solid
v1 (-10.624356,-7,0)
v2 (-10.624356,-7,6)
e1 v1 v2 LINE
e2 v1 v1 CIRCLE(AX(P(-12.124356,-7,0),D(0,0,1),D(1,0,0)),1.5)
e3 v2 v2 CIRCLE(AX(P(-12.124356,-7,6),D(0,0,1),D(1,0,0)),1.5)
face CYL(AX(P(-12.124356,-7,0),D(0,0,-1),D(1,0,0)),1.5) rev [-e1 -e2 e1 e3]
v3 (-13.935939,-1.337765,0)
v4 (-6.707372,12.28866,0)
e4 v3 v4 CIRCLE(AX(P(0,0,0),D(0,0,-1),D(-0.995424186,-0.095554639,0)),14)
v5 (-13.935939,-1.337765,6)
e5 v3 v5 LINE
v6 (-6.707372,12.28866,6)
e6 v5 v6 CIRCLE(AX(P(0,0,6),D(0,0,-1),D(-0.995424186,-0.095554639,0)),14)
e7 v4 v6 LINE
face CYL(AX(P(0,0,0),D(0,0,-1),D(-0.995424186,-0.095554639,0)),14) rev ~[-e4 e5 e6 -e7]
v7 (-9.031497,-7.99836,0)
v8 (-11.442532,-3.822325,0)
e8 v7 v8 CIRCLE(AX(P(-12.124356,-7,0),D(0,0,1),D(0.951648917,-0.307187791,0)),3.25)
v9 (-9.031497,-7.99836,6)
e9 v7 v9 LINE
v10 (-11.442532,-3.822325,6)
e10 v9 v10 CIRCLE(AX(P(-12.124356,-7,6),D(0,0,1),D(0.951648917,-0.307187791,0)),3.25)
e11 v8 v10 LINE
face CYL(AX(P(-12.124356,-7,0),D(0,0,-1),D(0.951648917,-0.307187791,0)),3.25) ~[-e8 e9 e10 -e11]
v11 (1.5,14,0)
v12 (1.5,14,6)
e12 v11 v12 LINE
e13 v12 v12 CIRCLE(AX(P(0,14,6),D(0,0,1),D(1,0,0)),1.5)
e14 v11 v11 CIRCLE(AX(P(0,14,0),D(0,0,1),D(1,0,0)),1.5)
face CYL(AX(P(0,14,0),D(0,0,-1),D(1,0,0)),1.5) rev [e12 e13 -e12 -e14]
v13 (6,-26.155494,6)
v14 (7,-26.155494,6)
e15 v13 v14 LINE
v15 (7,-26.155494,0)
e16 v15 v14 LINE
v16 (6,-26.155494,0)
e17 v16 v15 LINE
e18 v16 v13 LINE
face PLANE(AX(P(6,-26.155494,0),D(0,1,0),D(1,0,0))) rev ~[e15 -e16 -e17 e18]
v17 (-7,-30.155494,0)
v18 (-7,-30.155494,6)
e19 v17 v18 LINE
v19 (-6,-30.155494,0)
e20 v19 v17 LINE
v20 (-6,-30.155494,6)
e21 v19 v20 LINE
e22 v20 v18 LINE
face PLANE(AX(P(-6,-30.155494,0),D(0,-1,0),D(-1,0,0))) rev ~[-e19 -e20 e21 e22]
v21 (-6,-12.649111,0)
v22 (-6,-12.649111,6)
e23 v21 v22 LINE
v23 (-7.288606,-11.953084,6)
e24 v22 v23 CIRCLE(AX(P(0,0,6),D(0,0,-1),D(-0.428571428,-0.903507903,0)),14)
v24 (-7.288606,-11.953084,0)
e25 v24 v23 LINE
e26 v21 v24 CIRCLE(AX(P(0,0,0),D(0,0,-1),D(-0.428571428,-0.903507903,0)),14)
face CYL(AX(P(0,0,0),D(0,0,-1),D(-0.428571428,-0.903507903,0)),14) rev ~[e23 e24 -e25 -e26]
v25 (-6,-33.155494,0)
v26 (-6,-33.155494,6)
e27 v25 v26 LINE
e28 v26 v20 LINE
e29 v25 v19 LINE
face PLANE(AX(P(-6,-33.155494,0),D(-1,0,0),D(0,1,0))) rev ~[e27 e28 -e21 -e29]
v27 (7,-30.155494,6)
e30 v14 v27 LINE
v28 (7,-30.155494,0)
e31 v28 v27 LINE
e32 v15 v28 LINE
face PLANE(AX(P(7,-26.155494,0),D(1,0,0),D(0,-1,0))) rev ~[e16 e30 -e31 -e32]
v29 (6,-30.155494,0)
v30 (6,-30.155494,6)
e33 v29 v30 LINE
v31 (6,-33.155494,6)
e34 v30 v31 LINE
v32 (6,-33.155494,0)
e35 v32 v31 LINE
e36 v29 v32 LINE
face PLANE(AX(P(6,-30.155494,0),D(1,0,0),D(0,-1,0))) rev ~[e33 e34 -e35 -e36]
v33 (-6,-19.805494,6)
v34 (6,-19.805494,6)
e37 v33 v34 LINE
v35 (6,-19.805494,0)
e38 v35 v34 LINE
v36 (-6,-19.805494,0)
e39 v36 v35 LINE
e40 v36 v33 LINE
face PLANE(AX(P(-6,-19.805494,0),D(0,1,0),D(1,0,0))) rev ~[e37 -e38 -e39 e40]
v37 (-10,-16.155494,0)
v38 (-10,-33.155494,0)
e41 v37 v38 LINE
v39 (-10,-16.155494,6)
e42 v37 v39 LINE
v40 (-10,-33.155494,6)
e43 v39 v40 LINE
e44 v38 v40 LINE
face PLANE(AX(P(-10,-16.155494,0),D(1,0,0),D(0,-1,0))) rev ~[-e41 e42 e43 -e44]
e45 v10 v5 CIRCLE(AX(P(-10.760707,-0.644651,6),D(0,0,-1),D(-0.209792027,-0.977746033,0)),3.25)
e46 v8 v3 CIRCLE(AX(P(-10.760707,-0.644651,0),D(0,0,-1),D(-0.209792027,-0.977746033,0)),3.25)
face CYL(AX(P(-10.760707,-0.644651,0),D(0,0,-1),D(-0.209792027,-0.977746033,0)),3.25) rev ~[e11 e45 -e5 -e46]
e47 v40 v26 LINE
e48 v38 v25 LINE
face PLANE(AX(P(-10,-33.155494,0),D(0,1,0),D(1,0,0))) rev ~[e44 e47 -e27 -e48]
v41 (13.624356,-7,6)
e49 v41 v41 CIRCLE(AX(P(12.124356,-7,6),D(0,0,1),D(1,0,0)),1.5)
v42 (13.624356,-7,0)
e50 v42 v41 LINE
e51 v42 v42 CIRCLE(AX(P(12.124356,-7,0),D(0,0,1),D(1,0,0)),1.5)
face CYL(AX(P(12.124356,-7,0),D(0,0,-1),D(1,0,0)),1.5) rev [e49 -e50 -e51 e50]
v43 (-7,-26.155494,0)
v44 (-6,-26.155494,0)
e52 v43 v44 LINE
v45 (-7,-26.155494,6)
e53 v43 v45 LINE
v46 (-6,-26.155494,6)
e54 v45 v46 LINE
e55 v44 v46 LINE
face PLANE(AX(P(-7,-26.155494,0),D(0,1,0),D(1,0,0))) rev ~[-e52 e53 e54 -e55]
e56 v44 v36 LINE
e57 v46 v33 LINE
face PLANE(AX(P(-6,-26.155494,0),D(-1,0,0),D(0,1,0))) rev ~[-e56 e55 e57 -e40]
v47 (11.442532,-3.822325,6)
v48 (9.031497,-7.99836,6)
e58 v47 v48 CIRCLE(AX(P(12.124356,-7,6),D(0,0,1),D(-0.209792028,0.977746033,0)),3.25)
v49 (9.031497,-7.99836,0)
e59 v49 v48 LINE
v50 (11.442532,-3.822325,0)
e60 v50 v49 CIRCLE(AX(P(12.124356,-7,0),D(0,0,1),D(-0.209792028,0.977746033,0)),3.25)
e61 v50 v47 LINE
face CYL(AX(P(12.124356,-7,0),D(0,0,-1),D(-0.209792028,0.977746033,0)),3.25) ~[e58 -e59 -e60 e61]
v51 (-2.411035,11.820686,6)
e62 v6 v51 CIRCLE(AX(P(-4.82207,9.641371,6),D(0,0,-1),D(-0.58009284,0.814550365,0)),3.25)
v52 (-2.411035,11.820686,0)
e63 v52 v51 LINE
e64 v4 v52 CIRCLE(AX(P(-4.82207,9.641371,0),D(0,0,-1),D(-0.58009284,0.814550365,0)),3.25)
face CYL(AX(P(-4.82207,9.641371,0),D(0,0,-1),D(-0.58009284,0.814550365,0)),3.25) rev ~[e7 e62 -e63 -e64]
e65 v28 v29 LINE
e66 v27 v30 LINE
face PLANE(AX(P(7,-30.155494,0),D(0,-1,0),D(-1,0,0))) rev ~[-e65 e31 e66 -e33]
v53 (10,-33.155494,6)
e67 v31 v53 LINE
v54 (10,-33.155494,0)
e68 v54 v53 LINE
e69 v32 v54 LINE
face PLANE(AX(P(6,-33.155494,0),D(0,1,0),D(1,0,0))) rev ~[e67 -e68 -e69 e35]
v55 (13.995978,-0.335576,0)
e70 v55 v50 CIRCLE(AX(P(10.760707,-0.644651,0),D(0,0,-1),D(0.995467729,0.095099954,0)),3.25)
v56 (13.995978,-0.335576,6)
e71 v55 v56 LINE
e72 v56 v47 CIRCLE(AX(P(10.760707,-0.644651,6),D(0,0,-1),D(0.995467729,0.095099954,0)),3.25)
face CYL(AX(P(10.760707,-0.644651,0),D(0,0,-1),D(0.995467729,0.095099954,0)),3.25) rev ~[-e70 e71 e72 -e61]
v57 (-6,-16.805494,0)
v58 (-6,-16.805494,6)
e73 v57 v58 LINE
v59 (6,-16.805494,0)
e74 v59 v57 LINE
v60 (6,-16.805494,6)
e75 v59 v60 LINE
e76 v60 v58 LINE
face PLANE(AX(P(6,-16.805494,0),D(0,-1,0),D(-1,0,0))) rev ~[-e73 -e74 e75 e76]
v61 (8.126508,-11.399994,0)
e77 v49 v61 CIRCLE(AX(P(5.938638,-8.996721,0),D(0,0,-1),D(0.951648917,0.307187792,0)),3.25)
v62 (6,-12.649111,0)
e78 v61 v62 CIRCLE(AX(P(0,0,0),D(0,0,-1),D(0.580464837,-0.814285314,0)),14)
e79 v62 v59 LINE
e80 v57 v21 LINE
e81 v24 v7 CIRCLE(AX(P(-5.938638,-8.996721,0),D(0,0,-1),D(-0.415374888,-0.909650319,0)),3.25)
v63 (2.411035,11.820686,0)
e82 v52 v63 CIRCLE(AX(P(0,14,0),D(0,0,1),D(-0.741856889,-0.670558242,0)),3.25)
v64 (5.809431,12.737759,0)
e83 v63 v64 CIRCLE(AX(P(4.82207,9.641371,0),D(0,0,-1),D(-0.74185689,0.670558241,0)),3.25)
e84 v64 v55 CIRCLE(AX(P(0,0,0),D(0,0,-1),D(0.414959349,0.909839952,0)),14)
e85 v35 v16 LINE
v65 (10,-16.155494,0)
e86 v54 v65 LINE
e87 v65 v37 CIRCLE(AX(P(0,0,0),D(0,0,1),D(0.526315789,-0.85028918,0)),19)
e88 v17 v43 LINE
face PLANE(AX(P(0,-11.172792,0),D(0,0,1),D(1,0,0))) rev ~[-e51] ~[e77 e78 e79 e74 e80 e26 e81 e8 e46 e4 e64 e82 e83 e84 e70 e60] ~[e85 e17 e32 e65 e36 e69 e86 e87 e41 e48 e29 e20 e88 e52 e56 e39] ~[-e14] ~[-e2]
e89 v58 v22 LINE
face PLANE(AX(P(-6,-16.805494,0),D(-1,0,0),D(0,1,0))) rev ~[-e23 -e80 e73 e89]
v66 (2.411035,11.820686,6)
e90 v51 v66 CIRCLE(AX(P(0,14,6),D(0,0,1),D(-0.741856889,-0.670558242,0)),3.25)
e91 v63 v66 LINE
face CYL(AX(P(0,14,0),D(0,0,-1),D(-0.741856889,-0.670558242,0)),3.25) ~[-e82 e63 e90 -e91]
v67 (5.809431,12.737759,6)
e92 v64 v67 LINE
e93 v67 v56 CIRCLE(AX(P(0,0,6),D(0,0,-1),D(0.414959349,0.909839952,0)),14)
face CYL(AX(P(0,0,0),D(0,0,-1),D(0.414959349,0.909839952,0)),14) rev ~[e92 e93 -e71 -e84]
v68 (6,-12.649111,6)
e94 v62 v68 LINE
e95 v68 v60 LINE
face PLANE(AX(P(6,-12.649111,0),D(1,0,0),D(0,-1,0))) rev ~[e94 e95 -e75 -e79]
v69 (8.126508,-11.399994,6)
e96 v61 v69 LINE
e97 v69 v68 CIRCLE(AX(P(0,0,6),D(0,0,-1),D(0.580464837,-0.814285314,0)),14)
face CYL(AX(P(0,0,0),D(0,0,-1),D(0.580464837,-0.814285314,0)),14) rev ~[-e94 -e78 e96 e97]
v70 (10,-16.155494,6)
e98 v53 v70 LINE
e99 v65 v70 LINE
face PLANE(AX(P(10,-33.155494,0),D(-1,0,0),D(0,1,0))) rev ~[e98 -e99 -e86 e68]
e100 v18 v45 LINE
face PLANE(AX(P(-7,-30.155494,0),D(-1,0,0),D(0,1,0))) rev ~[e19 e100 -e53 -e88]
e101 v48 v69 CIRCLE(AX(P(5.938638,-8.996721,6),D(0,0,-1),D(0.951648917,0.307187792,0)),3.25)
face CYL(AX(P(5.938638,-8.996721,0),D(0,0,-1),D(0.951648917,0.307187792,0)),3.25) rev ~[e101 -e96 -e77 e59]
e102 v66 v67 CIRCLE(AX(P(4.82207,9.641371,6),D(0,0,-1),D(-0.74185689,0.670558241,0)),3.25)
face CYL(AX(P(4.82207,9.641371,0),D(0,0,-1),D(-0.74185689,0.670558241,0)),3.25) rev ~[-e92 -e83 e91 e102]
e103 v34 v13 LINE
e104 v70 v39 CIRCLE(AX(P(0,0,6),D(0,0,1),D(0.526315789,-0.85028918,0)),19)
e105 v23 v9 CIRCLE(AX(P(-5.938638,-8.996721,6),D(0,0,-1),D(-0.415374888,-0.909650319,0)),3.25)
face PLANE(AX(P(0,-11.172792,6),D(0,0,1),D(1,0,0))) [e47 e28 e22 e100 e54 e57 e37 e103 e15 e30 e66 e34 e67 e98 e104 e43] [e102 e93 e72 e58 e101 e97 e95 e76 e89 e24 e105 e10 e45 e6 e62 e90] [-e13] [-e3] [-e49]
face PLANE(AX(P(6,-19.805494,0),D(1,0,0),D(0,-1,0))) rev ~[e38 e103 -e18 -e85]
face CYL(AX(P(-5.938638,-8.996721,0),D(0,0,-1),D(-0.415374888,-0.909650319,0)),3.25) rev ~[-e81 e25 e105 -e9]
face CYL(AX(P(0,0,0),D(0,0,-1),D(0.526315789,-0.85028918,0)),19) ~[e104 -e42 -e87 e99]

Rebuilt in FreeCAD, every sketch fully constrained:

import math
import FreeCAD as App
import Part
import Sketcher

V = App.Vector

doc = App.newDocument("Part")
body = doc.addObject("PartDesign::Body", "Body")

sketch1 = doc.addObject("Sketcher::SketchObject", "Sketch")
body.addObject(sketch1)
sketch1.AttachmentSupport = (doc.XY_Plane, [""])
sketch1.MapMode = "FlatFace"
sketch1.addGeometry([
    Part.LineSegment(V(-6, -33.2, 0), V(-6, -30.2, 0)),
    Part.LineSegment(V(-6, -30.2, 0), V(-7, -30.2, 0)),
    Part.LineSegment(V(-7, -30.2, 0), V(-7, -26.2, 0)),
    Part.LineSegment(V(-7, -26.2, 0), V(-6, -26.2, 0)),
    Part.LineSegment(V(-6, -26.2, 0), V(-6, -19.8, 0)),
    Part.LineSegment(V(-6, -19.8, 0), V(6, -19.8, 0)),
    Part.LineSegment(V(6, -19.8, 0), V(6, -26.2, 0)),
    Part.LineSegment(V(6, -26.2, 0), V(7, -26.2, 0)),
    Part.LineSegment(V(7, -26.2, 0), V(7, -30.2, 0)),
    Part.LineSegment(V(7, -30.2, 0), V(6, -30.2, 0)),
    Part.LineSegment(V(6, -30.2, 0), V(6, -33.2, 0)),
    Part.LineSegment(V(6, -33.2, 0), V(10, -33.2, 0)),
    Part.LineSegment(V(10, -33.2, 0), V(10, -16.2, 0)),
    Part.ArcOfCircle(Part.Circle(V(0, 0, 0), V(0, 0, 1), 19), math.radians(-58), math.radians(238)),
    Part.LineSegment(V(-10, -16.2, 0), V(-10, -33.2, 0)),
    Part.LineSegment(V(-10, -33.2, 0), V(-6, -33.2, 0)),
    Part.Circle(V(-12.1, -7, 0), V(0, 0, 1), 1.5),
    Part.LineSegment(V(6, -12.6, 0), V(6, -16.8, 0)),
    Part.LineSegment(V(6, -16.8, 0), V(-6, -16.8, 0)),
    Part.LineSegment(V(-6, -16.8, 0), V(-6, -12.6, 0)),
    Part.ArcOfCircle(Part.Circle(V(0, 0, 0), V(0, 0, 1), 14), math.radians(-121.37), math.radians(-115.38)),
    Part.ArcOfCircle(Part.Circle(V(-5.9, -9, 0), V(0, 0, 1), 3.2), math.radians(162), math.radians(245)),
    Part.ArcOfCircle(Part.Circle(V(-12.1, -7, 0), V(0, 0, 1), 3.3), math.radians(-18), math.radians(78)),
    Part.ArcOfCircle(Part.Circle(V(-10.8, -0.6, 0), V(0, 0, 1), 3.2), math.radians(-168), math.radians(-102)),
    Part.ArcOfCircle(Part.Circle(V(0, 0, 0), V(0, 0, 1), 14), math.radians(119), math.radians(185)),
    Part.ArcOfCircle(Part.Circle(V(-4.8, 9.6, 0), V(0, 0, 1), 3.2), math.radians(42), math.radians(125)),
    Part.ArcOfCircle(Part.Circle(V(0, 14, 0), V(0, 0, 1), 3.3), math.radians(-138), math.radians(-42)),
    Part.ArcOfCircle(Part.Circle(V(4.8, 9.6, 0), V(0, 0, 1), 3.2), math.radians(72), math.radians(138)),
    Part.ArcOfCircle(Part.Circle(V(0, 0, 0), V(0, 0, 1), 14), math.radians(-1), math.radians(65)),
    Part.ArcOfCircle(Part.Circle(V(10.8, -0.6, 0), V(0, 0, 1), 3.2), math.radians(-78), math.radians(5)),
    Part.ArcOfCircle(Part.Circle(V(12.1, -7, 0), V(0, 0, 1), 3.3), math.radians(102), math.radians(198)),
    Part.ArcOfCircle(Part.Circle(V(5.9, -9, 0), V(0, 0, 1), 3.2), math.radians(-48), math.radians(18)),
    Part.ArcOfCircle(Part.Circle(V(0, 0, 0), V(0, 0, 1), 14), math.radians(-64.62), math.radians(-54.52)),
    Part.Circle(V(12.1, -7, 0), V(0, 0, 1), 1.5),
    Part.Circle(V(0, 14, 0), V(0, 0, 1), 1.5),
], False)
sketch1.addConstraint([
    Sketcher.Constraint("Coincident", 0, 2, 1, 1),
    Sketcher.Constraint("Coincident", 1, 2, 2, 1),
    Sketcher.Constraint("Coincident", 2, 2, 3, 1),
    Sketcher.Constraint("Coincident", 3, 2, 4, 1),
    Sketcher.Constraint("Coincident", 4, 2, 5, 1),
    Sketcher.Constraint("Coincident", 5, 2, 6, 1),
    Sketcher.Constraint("Coincident", 6, 2, 7, 1),
    Sketcher.Constraint("Coincident", 7, 2, 8, 1),
    Sketcher.Constraint("Coincident", 8, 2, 9, 1),
    Sketcher.Constraint("Coincident", 9, 2, 10, 1),
    Sketcher.Constraint("Coincident", 10, 2, 11, 1),
    Sketcher.Constraint("Coincident", 11, 2, 12, 1),
    Sketcher.Constraint("Coincident", 12, 2, 13, 1),
    Sketcher.Constraint("Coincident", 13, 2, 14, 1),
    Sketcher.Constraint("Coincident", 14, 2, 15, 1),
    Sketcher.Constraint("Coincident", 15, 2, 0, 1),
    Sketcher.Constraint("Coincident", 17, 2, 18, 1),
    Sketcher.Constraint("Coincident", 18, 2, 19, 1),
    Sketcher.Constraint("Coincident", 19, 2, 20, 2),
    Sketcher.Constraint("Coincident", 20, 1, 21, 2),
    Sketcher.Constraint("Tangent", 21, 1, 22, 1),
    Sketcher.Constraint("Tangent", 22, 2, 23, 2),
    Sketcher.Constraint("Coincident", 23, 1, 24, 2),
    Sketcher.Constraint("Coincident", 24, 1, 25, 2),
    Sketcher.Constraint("Tangent", 25, 1, 26, 1),
    Sketcher.Constraint("Tangent", 26, 2, 27, 2),
    Sketcher.Constraint("Coincident", 27, 1, 28, 2),
    Sketcher.Constraint("Coincident", 28, 1, 29, 2),
    Sketcher.Constraint("Tangent", 29, 1, 30, 1),
    Sketcher.Constraint("Tangent", 30, 2, 31, 2),
    Sketcher.Constraint("Coincident", 31, 1, 32, 2),
    Sketcher.Constraint("Coincident", 32, 1, 17, 1),
    Sketcher.Constraint("Vertical", 0),
    Sketcher.Constraint("Horizontal", 1),
    Sketcher.Constraint("Vertical", 2),
    Sketcher.Constraint("Horizontal", 3),
    Sketcher.Constraint("Vertical", 4),
    Sketcher.Constraint("Horizontal", 5),
    Sketcher.Constraint("Vertical", 6),
    Sketcher.Constraint("Horizontal", 7),
    Sketcher.Constraint("Vertical", 8),
    Sketcher.Constraint("Horizontal", 9),
    Sketcher.Constraint("Vertical", 10),
    Sketcher.Constraint("Horizontal", 11),
    Sketcher.Constraint("Vertical", 12),
    Sketcher.Constraint("Vertical", 14),
    Sketcher.Constraint("Horizontal", 15),
    Sketcher.Constraint("Vertical", 17),
    Sketcher.Constraint("Horizontal", 18),
    Sketcher.Constraint("Vertical", 19),
    Sketcher.Constraint("Coincident", 13, 3, -1, 1),
    Sketcher.Constraint("Coincident", 20, 3, -1, 1),
    Sketcher.Constraint("Coincident", 24, 3, -1, 1),
    Sketcher.Constraint("Coincident", 28, 3, -1, 1),
    Sketcher.Constraint("Coincident", 32, 3, -1, 1),
    Sketcher.Constraint("Coincident", 22, 3, 16, 3),
    Sketcher.Constraint("Coincident", 33, 3, 30, 3),
    Sketcher.Constraint("Coincident", 34, 3, 26, 3),
    Sketcher.Constraint("Equal", 21, 22),
    Sketcher.Constraint("Equal", 22, 23),
    Sketcher.Constraint("Equal", 20, 24),
    Sketcher.Constraint("Equal", 23, 25),
    Sketcher.Constraint("Equal", 25, 26),
    Sketcher.Constraint("Equal", 26, 27),
    Sketcher.Constraint("Equal", 24, 28),
    Sketcher.Constraint("Equal", 27, 29),
    Sketcher.Constraint("Equal", 29, 30),
    Sketcher.Constraint("Equal", 30, 31),
    Sketcher.Constraint("Equal", 28, 32),
    Sketcher.Constraint("Equal", 16, 33),
    Sketcher.Constraint("Equal", 33, 34),
    Sketcher.Constraint("Symmetric", 25, 3, 27, 3, -2),
    Sketcher.Constraint("Symmetric", 23, 3, 29, 3, -2),
    Sketcher.Constraint("Symmetric", 21, 3, 31, 3, -2),
    Sketcher.Constraint("Symmetric", 3, 2, 6, 2, -2),
    Sketcher.Constraint("Symmetric", 1, 2, 8, 2, -2),
    Sketcher.Constraint("Symmetric", 11, 2, 14, 2, -2),
    Sketcher.Constraint("Horizontal", 19, 2, 32, 1),
    Sketcher.Constraint("Vertical", 0, 2, 3, 2),
    Sketcher.Constraint("Vertical", 6, 2, 9, 2),
    Sketcher.Constraint("Vertical", 10, 2, 17, 2),
    Sketcher.Constraint("Equal", 15, 2),
    Sketcher.Constraint("Diameter", 16, 3.0),
    Sketcher.Constraint("Radius", 13, 19.0),
    Sketcher.Constraint("Radius", 20, 14.0),
    Sketcher.Constraint("DistanceX", 1, 2, 1, 1, 1.0),
    Sketcher.Constraint("DistanceX", 5, 1, 5, 2, 12.0),
    Sketcher.Constraint("DistanceX", 11, 1, 11, 2, 4.0),
    Sketcher.Constraint("DistanceY", 0, 1, 0, 2, 3.0),
    Sketcher.Constraint("DistanceY", 12, 1, 12, 2, 17.0),
    Sketcher.Constraint("Radius", 21, 3.25),
    Sketcher.Constraint("DistanceY", 16, 3, -1, 1, 7.0),
    Sketcher.Constraint("DistanceY", -1, 1, 26, 3, 14.0),
    Sketcher.Constraint("DistanceY", 5, 2, 17, 2, 3.0),
    Sketcher.Constraint("DistanceY", 4, 1, 4, 2, 6.35),
    Sketcher.Constraint("DistanceX", 24, 1, 25, 3, 1.885302),
    Sketcher.Constraint("DistanceY", 12, 2, 31, 1, 4.7555),
    Sketcher.Constraint("DistanceY", 21, 3, -1, 1, 8.996721),
    Sketcher.Constraint("DistanceY", 23, 3, -1, 1, 0.644651),
])
pad1 = doc.addObject("PartDesign::Pad", "Pad")
body.addObject(pad1)
pad1.Profile = sketch1
pad1.Length = 6

doc.recompute()
